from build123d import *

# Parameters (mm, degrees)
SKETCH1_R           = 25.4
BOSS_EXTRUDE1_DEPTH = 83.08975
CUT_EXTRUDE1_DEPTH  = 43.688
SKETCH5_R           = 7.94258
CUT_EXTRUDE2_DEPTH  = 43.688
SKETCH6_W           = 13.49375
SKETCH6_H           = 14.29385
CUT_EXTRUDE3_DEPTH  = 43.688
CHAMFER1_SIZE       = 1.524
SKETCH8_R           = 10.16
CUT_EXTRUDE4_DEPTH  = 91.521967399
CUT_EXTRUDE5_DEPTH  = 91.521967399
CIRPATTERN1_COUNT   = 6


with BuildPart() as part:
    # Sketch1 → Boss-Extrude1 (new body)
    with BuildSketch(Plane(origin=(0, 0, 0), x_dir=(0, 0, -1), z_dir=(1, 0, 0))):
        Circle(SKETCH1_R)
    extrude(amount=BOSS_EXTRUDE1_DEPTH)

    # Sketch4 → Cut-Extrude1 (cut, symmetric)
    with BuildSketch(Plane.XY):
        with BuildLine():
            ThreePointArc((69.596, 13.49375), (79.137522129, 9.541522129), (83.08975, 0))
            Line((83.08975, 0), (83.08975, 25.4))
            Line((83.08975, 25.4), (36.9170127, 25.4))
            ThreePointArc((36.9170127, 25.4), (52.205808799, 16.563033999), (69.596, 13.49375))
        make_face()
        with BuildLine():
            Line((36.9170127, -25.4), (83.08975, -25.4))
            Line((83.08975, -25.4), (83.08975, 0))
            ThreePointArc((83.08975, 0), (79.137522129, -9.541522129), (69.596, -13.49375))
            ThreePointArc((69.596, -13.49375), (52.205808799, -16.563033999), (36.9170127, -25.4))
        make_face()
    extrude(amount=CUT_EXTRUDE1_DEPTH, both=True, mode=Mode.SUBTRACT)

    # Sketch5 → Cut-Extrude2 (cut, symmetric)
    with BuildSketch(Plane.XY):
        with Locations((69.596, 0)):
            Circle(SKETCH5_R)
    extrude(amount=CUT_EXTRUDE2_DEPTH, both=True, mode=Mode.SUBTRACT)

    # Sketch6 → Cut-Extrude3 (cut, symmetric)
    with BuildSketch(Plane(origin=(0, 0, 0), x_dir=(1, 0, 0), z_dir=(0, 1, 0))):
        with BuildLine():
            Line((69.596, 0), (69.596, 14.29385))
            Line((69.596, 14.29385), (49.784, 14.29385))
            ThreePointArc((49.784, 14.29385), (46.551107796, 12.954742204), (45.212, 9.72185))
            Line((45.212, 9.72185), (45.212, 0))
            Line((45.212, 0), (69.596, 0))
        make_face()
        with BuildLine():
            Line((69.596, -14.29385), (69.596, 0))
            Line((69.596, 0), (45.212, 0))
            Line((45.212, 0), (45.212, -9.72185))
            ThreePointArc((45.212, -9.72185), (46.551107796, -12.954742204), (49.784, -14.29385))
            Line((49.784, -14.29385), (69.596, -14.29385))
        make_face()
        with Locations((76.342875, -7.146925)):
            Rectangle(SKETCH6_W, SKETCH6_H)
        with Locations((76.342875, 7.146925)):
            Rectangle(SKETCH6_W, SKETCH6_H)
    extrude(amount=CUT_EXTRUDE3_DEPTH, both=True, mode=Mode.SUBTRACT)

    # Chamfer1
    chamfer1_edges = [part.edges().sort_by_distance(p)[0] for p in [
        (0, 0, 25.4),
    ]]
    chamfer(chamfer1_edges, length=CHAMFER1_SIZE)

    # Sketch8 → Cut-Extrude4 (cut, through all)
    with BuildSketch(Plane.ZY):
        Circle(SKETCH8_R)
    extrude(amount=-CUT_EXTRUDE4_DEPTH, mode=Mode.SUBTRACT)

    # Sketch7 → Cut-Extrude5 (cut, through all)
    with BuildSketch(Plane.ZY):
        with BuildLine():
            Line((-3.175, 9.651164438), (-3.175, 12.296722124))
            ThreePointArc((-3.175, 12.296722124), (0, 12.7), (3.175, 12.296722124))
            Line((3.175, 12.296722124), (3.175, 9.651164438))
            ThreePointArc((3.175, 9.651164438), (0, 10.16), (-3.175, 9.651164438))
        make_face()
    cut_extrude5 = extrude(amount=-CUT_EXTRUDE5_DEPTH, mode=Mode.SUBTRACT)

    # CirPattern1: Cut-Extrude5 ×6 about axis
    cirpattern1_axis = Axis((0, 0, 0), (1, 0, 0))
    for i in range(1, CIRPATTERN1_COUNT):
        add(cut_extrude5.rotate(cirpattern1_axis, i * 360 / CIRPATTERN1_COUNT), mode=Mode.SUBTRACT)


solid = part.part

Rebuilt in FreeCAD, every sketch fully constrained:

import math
import FreeCAD as App
import Part
import Sketcher
Q = App.Units.Quantity


def edges_at(feature, points):
    """Names of the edges that pass closest to the given points."""
    edges = feature.Shape.Edges
    near = lambda p: min(range(len(edges)), key=lambda i: edges[i].distToShape(Part.Vertex(*p))[0])
    return sorted({f"Edge{near(p) + 1}" for p in points})

doc = App.newDocument("Part")
params = doc.addObject("Spreadsheet::Sheet", "Params")
for row, (alias, value) in enumerate([
    ("sketch1_diameter", "2 in"),
    ("pad1_length", "83.08975 mm"),
    ("sketch2_radius", "2 in"),
    ("sketch2_height", "1 in"),
    ("sketch2_radius2", "0.53125 in"),
    ("pocket1_length", "3.44 in"),
    ("pocket2_length", "3.44 in"),
    ("sketch4_radius", "0.18 in"),
    ("pocket3_length", "3.44 in"),
    ("chamfer_size", "0.06 in"),
    ("sketch5_diameter", "0.8 in"),
    ("sketch6_radius", "0.4 in"),
    ("sketch6_radius2", "0.5 in"),
], start=1):
    params.set(f"A{row}", alias)
    params.set(f"B{row}", "=" + value)
    params.setAlias(f"B{row}", alias)

body = doc.addObject("PartDesign::Body", "Body")

# Sketch on YZ plane
sketch1 = body.newObject("Sketcher::SketchObject", "Sketch")
sketch1.AttachmentSupport = (doc.getObject("YZ_Plane"), [""])
sketch1.MapMode = "FlatFace"
sketch1.addGeometry(Part.Circle(App.Vector(0, 0, 0), App.Vector(0, 0, 1), 25.4), False)
sketch1.addConstraint(Sketcher.Constraint("Coincident", 0, 3, -1, 1))
sketch1.addConstraint(Sketcher.Constraint("Diameter", 0, Q("2 in")))
sketch1.setExpression("Constraints[1]", "Params.sketch1_diameter")
pad1 = body.newObject("PartDesign::Pad", "Pad")
pad1.Profile = sketch1
pad1.setExpression("Length", "Params.pad1_length")

# Sketch on XY plane
sketch2 = body.newObject("Sketcher::SketchObject", "Sketch001")
sketch2.AttachmentSupport = (doc.getObject("XY_Plane"), [""])
sketch2.MapMode = "FlatFace"
sketch2.addGeometry(Part.ArcOfCircle(Part.Circle(App.Vector(69.596, 0, 0), App.Vector(0, 0, 1), 13.49375), math.radians(0), math.radians(90)), False)
sketch2.addGeometry(Part.LineSegment(App.Vector(83.08975, 0, 0), App.Vector(83.08975, 25.4, 0)), False)
sketch2.addGeometry(Part.LineSegment(App.Vector(83.08975, 25.4, 0), App.Vector(36.917013, 25.4, 0)), False)
sketch2.addGeometry(Part.ArcOfCircle(Part.Circle(App.Vector(69.596, 64.29375, 0), App.Vector(0, 0, 1), 50.8), math.radians(-130.037373), math.radians(-90)), False)
sketch2.addGeometry(Part.LineSegment(App.Vector(36.917013, -25.4, 0), App.Vector(83.08975, -25.4, 0)), False)
sketch2.addGeometry(Part.LineSegment(App.Vector(83.08975, -25.4, 0), App.Vector(83.08975, 0, 0)), False)
sketch2.addGeometry(Part.ArcOfCircle(Part.Circle(App.Vector(69.596, 0, 0), App.Vector(0, 0, 1), 13.49375), math.radians(-90), math.radians(0)), False)
sketch2.addGeometry(Part.ArcOfCircle(Part.Circle(App.Vector(69.596, -64.29375, 0), App.Vector(0, 0, 1), 50.8), math.radians(90), math.radians(130.037373)), False)
sketch2.addConstraint(Sketcher.Constraint("Tangent", 0, 1, 1, 1))
sketch2.addConstraint(Sketcher.Constraint("Coincident", 1, 2, 2, 1))
sketch2.addConstraint(Sketcher.Constraint("Coincident", 2, 2, 3, 1))
sketch2.addConstraint(Sketcher.Constraint("Tangent", 3, 2, 0, 2))
sketch2.addConstraint(Sketcher.Constraint("Coincident", 4, 2, 5, 1))
sketch2.addConstraint(Sketcher.Constraint("Tangent", 5, 2, 6, 2))
sketch2.addConstraint(Sketcher.Constraint("Tangent", 6, 1, 7, 1))
sketch2.addConstraint(Sketcher.Constraint("Coincident", 7, 2, 4, 1))
sketch2.addConstraint(Sketcher.Constraint("Vertical", 1))
sketch2.addConstraint(Sketcher.Constraint("Horizontal", 2))
sketch2.addConstraint(Sketcher.Constraint("Horizontal", 4))
sketch2.addConstraint(Sketcher.Constraint("Vertical", 5))
sketch2.addConstraint(Sketcher.Constraint("Coincident", 6, 3, 0, 3))
sketch2.addConstraint(Sketcher.Constraint("Equal", 0, 6))
sketch2.addConstraint(Sketcher.Constraint("Equal", 3, 7))
sketch2.addConstraint(Sketcher.Constraint("Symmetric", 3, 3, 7, 3, -1))
sketch2.addConstraint(Sketcher.Constraint("Vertical", 0, 3, 3, 3))
sketch2.addConstraint(Sketcher.Constraint("Vertical", 2, 2, 7, 2))
sketch2.addConstraint(Sketcher.Constraint("Radius", 3, Q("2 in")))
sketch2.addConstraint(Sketcher.Constraint("DistanceY", 1, 1, 1, 2, Q("1 in")))
sketch2.addConstraint(Sketcher.Constraint("Radius", 0, Q("0.53125 in")))
sketch2.addConstraint(Sketcher.Constraint("DistanceX", -1, 1, 0, 3, Q("2.74 in")))
sketch2.setExpression("Constraints[18]", "Params.sketch2_radius")
sketch2.setExpression("Constraints[19]", "Params.sketch2_height")
sketch2.setExpression("Constraints[20]", "Params.sketch2_radius2")
pocket1 = body.newObject("PartDesign::Pocket", "Pocket")
pocket1.Profile = sketch2
pocket1.setExpression("Length", "Params.pocket1_length")
pocket1.Midplane = True

# Sketch on XY plane
sketch3 = body.newObject("Sketcher::SketchObject", "Sketch002")
sketch3.AttachmentSupport = (doc.getObject("XY_Plane"), [""])
sketch3.MapMode = "FlatFace"
sketch3.addGeometry(Part.Circle(App.Vector(69.596, 0, 0), App.Vector(0, 0, 1), 7.94258), False)
sketch3.addConstraint(Sketcher.Constraint("PointOnObject", 0, 3, -1))
sketch3.addConstraint(Sketcher.Constraint("Diameter", 0, Q("0.6254 in")))
sketch3.addConstraint(Sketcher.Constraint("DistanceX", -1, 1, 0, 3, Q("2.74 in")))
pocket2 = body.newObject("PartDesign::Pocket", "Pocket001")
pocket2.Profile = sketch3
pocket2.setExpression("Length", "Params.pocket2_length")
pocket2.Midplane = True

# Sketch on XZ plane
sketch4 = body.newObject("Sketcher::SketchObject", "Sketch003")
sketch4.AttachmentSupport = (doc.getObject("XZ_Plane"), [""])
sketch4.MapMode = "FlatFace"
sketch4.addGeometry(Part.ArcOfCircle(Part.Circle(App.Vector(49.784, -9.72185, 0), App.Vector(0, 0, 1), 4.572), math.radians(180), math.radians(270)), False)
sketch4.addGeometry(Part.LineSegment(App.Vector(45.212, -9.72185, 0), App.Vector(45.212, 9.72185, 0)), False)
sketch4.addGeometry(Part.ArcOfCircle(Part.Circle(App.Vector(49.784, 9.72185, 0), App.Vector(0, 0, 1), 4.572), math.radians(90), math.radians(180)), False)
sketch4.addGeometry(Part.LineSegment(App.Vector(49.784, 14.29385, 0), App.Vector(83.08975, 14.29385, 0)), False)
sketch4.addGeometry(Part.LineSegment(App.Vector(83.08975, 14.29385, 0), App.Vector(83.08975, -14.29385, 0)), False)
sketch4.addGeometry(Part.LineSegment(App.Vector(83.08975, -14.29385, 0), App.Vector(49.784, -14.29385, 0)), False)
sketch4.addConstraint(Sketcher.Constraint("Tangent", 0, 1, 1, 1))
sketch4.addConstraint(Sketcher.Constraint("Tangent", 1, 2, 2, 2))
sketch4.addConstraint(Sketcher.Constraint("Tangent", 2, 1, 3, 1))
sketch4.addConstraint(Sketcher.Constraint("Coincident", 3, 2, 4, 1))
sketch4.addConstraint(Sketcher.Constraint("Coincident", 4, 2, 5, 1))
sketch4.addConstraint(Sketcher.Constraint("Tangent", 5, 2, 0, 2))
sketch4.addConstraint(Sketcher.Constraint("Vertical", 1))
sketch4.addConstraint(Sketcher.Constraint("Horizontal", 3))
sketch4.addConstraint(Sketcher.Constraint("Vertical", 4))
sketch4.addConstraint(Sketcher.Constraint("Horizontal", 5))
sketch4.addConstraint(Sketcher.Constraint("Equal", 0, 2))
sketch4.addConstraint(Sketcher.Constraint("Radius", 0, Q("0.18 in")))
sketch4.addConstraint(Sketcher.Constraint("DistanceX", -1, 1, 0, 3, Q("1.96 in")))
sketch4.addConstraint(Sketcher.Constraint("DistanceY", 1, 1, 1, 2, Q("0.7655 in")))
sketch4.addConstraint(Sketcher.Constraint("DistanceX", 3, 1, 3, 2, Q("33.30575 mm")))
sketch4.addConstraint(Sketcher.Constraint("DistanceY", 0, 3, -1, 1, Q("9.72185 mm")))
sketch4.setExpression("Constraints[11]", "Params.sketch4_radius")
pocket3 = body.newObject("PartDesign::Pocket", "Pocket002")
pocket3.Profile = sketch4
pocket3.setExpression("Length", "Params.pocket3_length")
pocket3.Midplane = True
doc.recompute()

chamfer = body.newObject("PartDesign::Chamfer", "Chamfer")
chamfer.Base = (pocket3, edges_at(pocket3, [(0, 0, 25.4)]))
chamfer.setExpression("Size", "Params.chamfer_size")

# Sketch on YZ plane
sketch5 = body.newObject("Sketcher::SketchObject", "Sketch004")
sketch5.AttachmentSupport = (doc.getObject("YZ_Plane"), [""])
sketch5.MapMode = "FlatFace"
sketch5.addGeometry(Part.Circle(App.Vector(0, 0, 0), App.Vector(0, 0, 1), 10.16), False)
sketch5.addConstraint(Sketcher.Constraint("Coincident", 0, 3, -1, 1))
sketch5.addConstraint(Sketcher.Constraint("Diameter", 0, Q("0.8 in")))
sketch5.setExpression("Constraints[1]", "Params.sketch5_diameter")
pocket4 = body.newObject("PartDesign::Pocket", "Pocket003")
pocket4.Profile = sketch5
pocket4.Type = "ThroughAll"
pocket4.Reversed = True

# Sketch on YZ plane
sketch6 = body.newObject("Sketcher::SketchObject", "Sketch005")
sketch6.AttachmentSupport = (doc.getObject("YZ_Plane"), [""])
sketch6.MapMode = "FlatFace"
sketch6.addGeometry(Part.LineSegment(App.Vector(12.296722, -3.175, 0), App.Vector(9.651164, -3.175, 0)), False)
sketch6.addGeometry(Part.ArcOfCircle(Part.Circle(App.Vector(0, 0, 0), App.Vector(0, 0, 1), 10.16), math.radians(-18.209957), math.radians(18.209957)), False)
sketch6.addGeometry(Part.LineSegment(App.Vector(9.651164, 3.175, 0), App.Vector(12.296722, 3.175, 0)), False)
sketch6.addGeometry(Part.ArcOfCircle(Part.Circle(App.Vector(0, 0, 0), App.Vector(0, 0, 1), 12.7), math.radians(-14.477512), math.radians(14.477512)), False)
sketch6.addConstraint(Sketcher.Constraint("Coincident", 0, 2, 1, 1))
sketch6.addConstraint(Sketcher.Constraint("Coincident", 1, 2, 2, 1))
sketch6.addConstraint(Sketcher.Constraint("Coincident", 2, 2, 3, 2))
sketch6.addConstraint(Sketcher.Constraint("Coincident", 3, 1, 0, 1))
sketch6.addConstraint(Sketcher.Constraint("Horizontal", 0))
sketch6.addConstraint(Sketcher.Constraint("Horizontal", 2))
sketch6.addConstraint(Sketcher.Constraint("Coincident", 1, 3, -1, 1))
sketch6.addConstraint(Sketcher.Constraint("Coincident", 3, 3, -1, 1))
sketch6.addConstraint(Sketcher.Constraint("Vertical", 0, 2, 1, 2))
sketch6.addConstraint(Sketcher.Constraint("Radius", 1, Q("0.4 in")))
sketch6.addConstraint(Sketcher.Constraint("Radius", 3, Q("0.5 in")))
sketch6.addConstraint(Sketcher.Constraint("DistanceY", 0, 2, 1, 2, Q("0.25 in")))
sketch6.setExpression("Constraints[9]", "Params.sketch6_radius")
sketch6.setExpression("Constraints[10]", "Params.sketch6_radius2")
pocket5 = body.newObject("PartDesign::Pocket", "Pocket004")
pocket5.Profile = sketch6
pocket5.Type = "ThroughAll"
pocket5.Reversed = True
doc.recompute()

polarpattern = body.newObject("PartDesign::PolarPattern", "PolarPattern")
polarpattern.Originals = [pocket5]
polarpattern.Axis = (doc.getObject("X_Axis"), [""])
polarpattern.Angle = 360
polarpattern.Occurrences = 6
body.Tip = polarpattern

doc.recompute()
